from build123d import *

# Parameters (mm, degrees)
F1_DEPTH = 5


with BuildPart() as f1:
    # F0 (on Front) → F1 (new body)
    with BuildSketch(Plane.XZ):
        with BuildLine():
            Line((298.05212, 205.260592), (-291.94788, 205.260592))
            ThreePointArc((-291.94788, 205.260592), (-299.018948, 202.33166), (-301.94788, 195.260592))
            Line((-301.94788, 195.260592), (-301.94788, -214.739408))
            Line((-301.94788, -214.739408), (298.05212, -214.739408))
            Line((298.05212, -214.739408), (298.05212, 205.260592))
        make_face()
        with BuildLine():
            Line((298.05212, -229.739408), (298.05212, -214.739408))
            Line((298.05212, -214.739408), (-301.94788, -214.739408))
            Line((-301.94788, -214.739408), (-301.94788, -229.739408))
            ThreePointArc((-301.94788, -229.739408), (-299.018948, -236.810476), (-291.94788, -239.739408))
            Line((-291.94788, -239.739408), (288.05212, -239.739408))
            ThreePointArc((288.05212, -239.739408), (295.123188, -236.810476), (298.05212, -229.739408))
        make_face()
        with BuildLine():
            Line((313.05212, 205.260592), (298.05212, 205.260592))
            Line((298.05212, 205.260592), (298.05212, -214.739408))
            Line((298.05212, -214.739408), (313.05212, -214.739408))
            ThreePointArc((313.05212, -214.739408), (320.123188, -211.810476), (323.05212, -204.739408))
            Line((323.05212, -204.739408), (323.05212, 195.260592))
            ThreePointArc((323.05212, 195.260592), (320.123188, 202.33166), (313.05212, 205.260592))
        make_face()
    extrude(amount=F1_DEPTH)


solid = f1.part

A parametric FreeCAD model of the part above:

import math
import FreeCAD as App
import Part
import Sketcher
from FreeCAD import Vector
Q = App.Units.Quantity

doc = App.newDocument("Part")
params = doc.addObject("Spreadsheet::Sheet", "Params")
for row, (alias, value) in enumerate([
    ("sketch1_radius", "9.999999 mm"),
    ("sketch1_width", "580 mm"),
    ("sketch1_width2", "15 mm"),
    ("sketch1_height", "425 mm"),
    ("pad1_length", "5 mm"),
], start=1):
    params.set(f"A{row}", alias)
    params.set(f"B{row}", "=" + value)
    params.setAlias(f"B{row}", alias)

body = doc.addObject("PartDesign::Body", "Body")

# Sketch on XZ plane
sketch1 = body.newObject("Sketcher::SketchObject", "Sketch")
sketch1.AttachmentSupport = (doc.getObject("XZ_Plane"), [""])
sketch1.MapMode = "FlatFace"
sketch1.addGeometry([
    Part.ArcOfCircle(Part.Circle(Vector(-292, 195, 0), Vector(0, 0, 1), 10), math.radians(90), math.radians(180)),  # 0
    Part.LineSegment(Vector(-302, 195, 0), Vector(-302, -230, 0)),  # 1
    Part.ArcOfCircle(Part.Circle(Vector(-292, -230, 0), Vector(0, 0, 1), 10), math.radians(180), math.radians(270)),  # 2
    Part.LineSegment(Vector(-292, -240, 0), Vector(288, -240, 0)),  # 3
    Part.ArcOfCircle(Part.Circle(Vector(288, -230, 0), Vector(0, 0, 1), 10), math.radians(-90), math.radians(0)),  # 4
    Part.LineSegment(Vector(298, -230, 0), Vector(298, -215, 0)),  # 5
    Part.LineSegment(Vector(298, -215, 0), Vector(313, -215, 0)),  # 6
    Part.ArcOfCircle(Part.Circle(Vector(313, -205, 0), Vector(0, 0, 1), 10), math.radians(-90), math.radians(0)),  # 7
    Part.LineSegment(Vector(323, -205, 0), Vector(323, 195, 0)),  # 8
    Part.ArcOfCircle(Part.Circle(Vector(313, 195, 0), Vector(0, 0, 1), 10), math.radians(0), math.radians(90)),  # 9
    Part.LineSegment(Vector(313, 205, 0), Vector(-292, 205, 0)),  # 10
], False)
sketch1.addConstraint([
    Sketcher.Constraint("Tangent", 0, 2, 1, 1),
    Sketcher.Constraint("Tangent", 1, 2, 2, 1),
    Sketcher.Constraint("Tangent", 2, 2, 3, 1),
    Sketcher.Constraint("Tangent", 3, 2, 4, 1),
    Sketcher.Constraint("Tangent", 4, 2, 5, 1),
    Sketcher.Constraint("Coincident", 5, 2, 6, 1),
    Sketcher.Constraint("Tangent", 6, 2, 7, 1),
    Sketcher.Constraint("Tangent", 7, 2, 8, 1),
    Sketcher.Constraint("Tangent", 8, 2, 9, 1),
    Sketcher.Constraint("Tangent", 9, 2, 10, 1),
    Sketcher.Constraint("Tangent", 10, 2, 0, 1),
    Sketcher.Constraint("Vertical", 1),
    Sketcher.Constraint("Horizontal", 3),
    Sketcher.Constraint("Vertical", 5),
    Sketcher.Constraint("Horizontal", 6),
    Sketcher.Constraint("Vertical", 8),
    Sketcher.Constraint("Horizontal", 10),
    Sketcher.Constraint("Equal", 0, 2),
    Sketcher.Constraint("Equal", 2, 4),
    Sketcher.Constraint("Equal", 4, 7),
    Sketcher.Constraint("Equal", 7, 9),
    Sketcher.Constraint("Equal", 6, 5),
    Sketcher.Constraint("Radius", 0, Q("9.999999 mm")),
    Sketcher.Constraint("DistanceX", 3, 1, 3, 2, Q("580 mm")),
    Sketcher.Constraint("DistanceX", 6, 1, 6, 2, Q("15 mm")),
    Sketcher.Constraint("DistanceY", 1, 2, 1, 1, Q("425 mm")),
    Sketcher.Constraint("DistanceX", 0, 3, -1, 1, Q("291.947881 mm")),
    Sketcher.Constraint("DistanceY", 2, 3, -1, 1, Q("229.739409 mm")),
])
sketch1.setExpression("Constraints[22]", "Params.sketch1_radius")
sketch1.setExpression("Constraints[23]", "Params.sketch1_width")
sketch1.setExpression("Constraints[24]", "Params.sketch1_width2")
sketch1.setExpression("Constraints[25]", "Params.sketch1_height")
pad1 = body.newObject("PartDesign::Pad", "Pad")
pad1.Profile = sketch1
pad1.setExpression("Length", "Params.pad1_length")

doc.recompute()
